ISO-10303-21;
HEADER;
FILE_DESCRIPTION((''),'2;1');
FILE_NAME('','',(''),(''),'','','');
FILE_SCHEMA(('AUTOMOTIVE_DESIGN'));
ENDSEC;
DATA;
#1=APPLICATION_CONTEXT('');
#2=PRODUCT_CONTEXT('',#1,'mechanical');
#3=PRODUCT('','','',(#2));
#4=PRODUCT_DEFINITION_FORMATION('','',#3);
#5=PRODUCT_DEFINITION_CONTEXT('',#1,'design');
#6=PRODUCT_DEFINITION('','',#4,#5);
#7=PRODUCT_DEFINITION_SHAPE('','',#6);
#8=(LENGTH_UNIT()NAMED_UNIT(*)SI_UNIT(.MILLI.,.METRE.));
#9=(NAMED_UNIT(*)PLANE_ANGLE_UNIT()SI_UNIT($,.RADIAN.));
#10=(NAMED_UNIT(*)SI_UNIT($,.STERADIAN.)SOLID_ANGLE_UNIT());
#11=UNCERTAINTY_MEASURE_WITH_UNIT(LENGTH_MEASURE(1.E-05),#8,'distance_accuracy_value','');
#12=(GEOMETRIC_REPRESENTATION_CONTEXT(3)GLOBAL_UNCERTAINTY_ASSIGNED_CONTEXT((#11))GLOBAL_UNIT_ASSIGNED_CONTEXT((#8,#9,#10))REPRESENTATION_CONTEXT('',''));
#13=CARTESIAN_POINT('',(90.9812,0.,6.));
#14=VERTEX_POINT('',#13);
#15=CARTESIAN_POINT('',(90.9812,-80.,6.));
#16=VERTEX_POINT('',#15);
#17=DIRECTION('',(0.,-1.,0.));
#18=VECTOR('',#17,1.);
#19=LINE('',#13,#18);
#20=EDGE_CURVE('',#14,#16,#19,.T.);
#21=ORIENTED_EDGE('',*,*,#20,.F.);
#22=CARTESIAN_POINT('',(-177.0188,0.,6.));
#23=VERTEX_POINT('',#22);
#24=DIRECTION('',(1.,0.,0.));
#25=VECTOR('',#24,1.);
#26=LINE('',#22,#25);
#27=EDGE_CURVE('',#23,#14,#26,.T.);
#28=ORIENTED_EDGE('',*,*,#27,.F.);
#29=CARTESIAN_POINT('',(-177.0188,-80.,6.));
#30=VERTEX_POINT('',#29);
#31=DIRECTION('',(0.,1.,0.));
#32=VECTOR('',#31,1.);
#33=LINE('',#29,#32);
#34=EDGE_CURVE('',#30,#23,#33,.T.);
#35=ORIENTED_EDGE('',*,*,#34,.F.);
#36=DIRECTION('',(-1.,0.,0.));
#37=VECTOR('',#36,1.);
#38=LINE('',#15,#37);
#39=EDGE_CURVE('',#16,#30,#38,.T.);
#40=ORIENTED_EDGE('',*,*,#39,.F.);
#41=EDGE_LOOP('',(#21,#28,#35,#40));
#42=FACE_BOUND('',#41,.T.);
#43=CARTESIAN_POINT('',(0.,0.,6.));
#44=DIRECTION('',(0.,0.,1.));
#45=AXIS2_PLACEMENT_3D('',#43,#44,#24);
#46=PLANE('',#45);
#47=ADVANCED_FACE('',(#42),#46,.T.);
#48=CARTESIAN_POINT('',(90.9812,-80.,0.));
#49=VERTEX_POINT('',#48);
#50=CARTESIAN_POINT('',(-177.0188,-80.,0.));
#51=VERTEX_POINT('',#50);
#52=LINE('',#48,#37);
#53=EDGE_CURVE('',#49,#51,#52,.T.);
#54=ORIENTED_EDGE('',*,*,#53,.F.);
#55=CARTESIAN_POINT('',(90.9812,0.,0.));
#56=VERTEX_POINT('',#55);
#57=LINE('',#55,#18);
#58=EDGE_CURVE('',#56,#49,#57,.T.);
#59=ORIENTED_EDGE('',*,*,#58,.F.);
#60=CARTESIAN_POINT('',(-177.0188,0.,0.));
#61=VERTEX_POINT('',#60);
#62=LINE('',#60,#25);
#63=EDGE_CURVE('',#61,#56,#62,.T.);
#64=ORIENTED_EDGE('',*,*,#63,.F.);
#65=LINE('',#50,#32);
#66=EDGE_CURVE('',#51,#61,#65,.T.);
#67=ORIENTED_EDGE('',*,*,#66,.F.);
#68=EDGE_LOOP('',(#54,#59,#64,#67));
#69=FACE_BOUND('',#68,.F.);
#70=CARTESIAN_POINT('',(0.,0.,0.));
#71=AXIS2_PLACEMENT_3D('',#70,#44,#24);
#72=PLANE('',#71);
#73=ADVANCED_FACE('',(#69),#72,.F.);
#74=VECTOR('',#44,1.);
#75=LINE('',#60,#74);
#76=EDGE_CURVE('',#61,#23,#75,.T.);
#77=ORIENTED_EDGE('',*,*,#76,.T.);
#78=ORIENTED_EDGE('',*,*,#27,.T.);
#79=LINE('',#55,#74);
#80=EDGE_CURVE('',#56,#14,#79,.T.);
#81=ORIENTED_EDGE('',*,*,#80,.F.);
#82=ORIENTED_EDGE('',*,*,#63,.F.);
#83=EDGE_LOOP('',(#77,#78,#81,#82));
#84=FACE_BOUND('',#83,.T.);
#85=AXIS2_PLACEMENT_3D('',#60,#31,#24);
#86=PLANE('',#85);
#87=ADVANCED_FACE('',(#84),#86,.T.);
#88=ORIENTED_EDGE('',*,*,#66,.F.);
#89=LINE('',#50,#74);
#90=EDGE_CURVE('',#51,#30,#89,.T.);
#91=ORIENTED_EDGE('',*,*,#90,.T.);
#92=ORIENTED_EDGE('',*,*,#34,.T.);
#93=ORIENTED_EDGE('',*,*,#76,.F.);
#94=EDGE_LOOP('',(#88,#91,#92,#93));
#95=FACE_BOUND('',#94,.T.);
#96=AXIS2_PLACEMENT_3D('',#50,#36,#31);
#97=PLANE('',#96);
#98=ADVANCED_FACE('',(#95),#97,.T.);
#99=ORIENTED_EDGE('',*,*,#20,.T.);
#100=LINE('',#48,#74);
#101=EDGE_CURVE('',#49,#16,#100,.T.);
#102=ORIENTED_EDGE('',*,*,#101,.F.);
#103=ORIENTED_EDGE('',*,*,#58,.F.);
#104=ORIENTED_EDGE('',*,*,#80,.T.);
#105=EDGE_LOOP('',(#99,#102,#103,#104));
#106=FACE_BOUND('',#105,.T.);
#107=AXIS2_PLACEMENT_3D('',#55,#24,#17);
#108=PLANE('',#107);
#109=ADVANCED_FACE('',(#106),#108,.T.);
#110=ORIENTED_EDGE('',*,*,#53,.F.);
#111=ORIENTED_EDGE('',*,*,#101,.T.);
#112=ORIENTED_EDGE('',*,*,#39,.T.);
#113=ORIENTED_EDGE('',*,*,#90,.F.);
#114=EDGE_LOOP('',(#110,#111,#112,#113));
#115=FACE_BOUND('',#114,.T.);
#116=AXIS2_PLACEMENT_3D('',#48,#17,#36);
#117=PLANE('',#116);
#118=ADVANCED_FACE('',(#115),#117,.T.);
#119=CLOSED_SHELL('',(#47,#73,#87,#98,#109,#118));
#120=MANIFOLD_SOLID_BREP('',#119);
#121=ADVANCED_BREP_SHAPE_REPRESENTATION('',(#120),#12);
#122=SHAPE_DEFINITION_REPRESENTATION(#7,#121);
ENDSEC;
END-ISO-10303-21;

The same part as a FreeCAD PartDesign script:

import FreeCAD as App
import Part
import Sketcher
Q = App.Units.Quantity

doc = App.newDocument("Part")
body = doc.addObject("PartDesign::Body", "Body")

sketch1 = body.newObject("Sketcher::SketchObject", "Sketch")
sketch1.AttachmentSupport = (doc.getObject("XY_Plane"), [""])
sketch1.MapMode = "FlatFace"
sketch1.addGeometry([
    Part.LineSegment(App.Vector(91, 0, 0), App.Vector(-177, 0, 0)),
    Part.LineSegment(App.Vector(-177, 0, 0), App.Vector(-177, -80, 0)),
    Part.LineSegment(App.Vector(-177, -80, 0), App.Vector(91, -80, 0)),
    Part.LineSegment(App.Vector(91, -80, 0), App.Vector(91, 0, 0)),
], False)
sketch1.addConstraint([
    Sketcher.Constraint("Coincident", 0, 2, 1, 1),
    Sketcher.Constraint("Coincident", 1, 2, 2, 1),
    Sketcher.Constraint("Coincident", 2, 2, 3, 1),
    Sketcher.Constraint("Coincident", 3, 2, 0, 1),
    Sketcher.Constraint("Horizontal", 0),
    Sketcher.Constraint("Vertical", 1),
    Sketcher.Constraint("Horizontal", 2),
    Sketcher.Constraint("Vertical", 3),
    Sketcher.Constraint("PointOnObject", 0, 2, -1),
    Sketcher.Constraint("DistanceX", 0, 2, 0, 1, Q("268 mm")),
    Sketcher.Constraint("DistanceY", 1, 2, 1, 1, Q("80 mm")),
    Sketcher.Constraint("DistanceX", 0, 2, -1, 1, Q("177.0188 mm")),
])
pad1 = body.newObject("PartDesign::Pad", "Pad")
pad1.Profile = sketch1
pad1.Length = 6

doc.recompute()
